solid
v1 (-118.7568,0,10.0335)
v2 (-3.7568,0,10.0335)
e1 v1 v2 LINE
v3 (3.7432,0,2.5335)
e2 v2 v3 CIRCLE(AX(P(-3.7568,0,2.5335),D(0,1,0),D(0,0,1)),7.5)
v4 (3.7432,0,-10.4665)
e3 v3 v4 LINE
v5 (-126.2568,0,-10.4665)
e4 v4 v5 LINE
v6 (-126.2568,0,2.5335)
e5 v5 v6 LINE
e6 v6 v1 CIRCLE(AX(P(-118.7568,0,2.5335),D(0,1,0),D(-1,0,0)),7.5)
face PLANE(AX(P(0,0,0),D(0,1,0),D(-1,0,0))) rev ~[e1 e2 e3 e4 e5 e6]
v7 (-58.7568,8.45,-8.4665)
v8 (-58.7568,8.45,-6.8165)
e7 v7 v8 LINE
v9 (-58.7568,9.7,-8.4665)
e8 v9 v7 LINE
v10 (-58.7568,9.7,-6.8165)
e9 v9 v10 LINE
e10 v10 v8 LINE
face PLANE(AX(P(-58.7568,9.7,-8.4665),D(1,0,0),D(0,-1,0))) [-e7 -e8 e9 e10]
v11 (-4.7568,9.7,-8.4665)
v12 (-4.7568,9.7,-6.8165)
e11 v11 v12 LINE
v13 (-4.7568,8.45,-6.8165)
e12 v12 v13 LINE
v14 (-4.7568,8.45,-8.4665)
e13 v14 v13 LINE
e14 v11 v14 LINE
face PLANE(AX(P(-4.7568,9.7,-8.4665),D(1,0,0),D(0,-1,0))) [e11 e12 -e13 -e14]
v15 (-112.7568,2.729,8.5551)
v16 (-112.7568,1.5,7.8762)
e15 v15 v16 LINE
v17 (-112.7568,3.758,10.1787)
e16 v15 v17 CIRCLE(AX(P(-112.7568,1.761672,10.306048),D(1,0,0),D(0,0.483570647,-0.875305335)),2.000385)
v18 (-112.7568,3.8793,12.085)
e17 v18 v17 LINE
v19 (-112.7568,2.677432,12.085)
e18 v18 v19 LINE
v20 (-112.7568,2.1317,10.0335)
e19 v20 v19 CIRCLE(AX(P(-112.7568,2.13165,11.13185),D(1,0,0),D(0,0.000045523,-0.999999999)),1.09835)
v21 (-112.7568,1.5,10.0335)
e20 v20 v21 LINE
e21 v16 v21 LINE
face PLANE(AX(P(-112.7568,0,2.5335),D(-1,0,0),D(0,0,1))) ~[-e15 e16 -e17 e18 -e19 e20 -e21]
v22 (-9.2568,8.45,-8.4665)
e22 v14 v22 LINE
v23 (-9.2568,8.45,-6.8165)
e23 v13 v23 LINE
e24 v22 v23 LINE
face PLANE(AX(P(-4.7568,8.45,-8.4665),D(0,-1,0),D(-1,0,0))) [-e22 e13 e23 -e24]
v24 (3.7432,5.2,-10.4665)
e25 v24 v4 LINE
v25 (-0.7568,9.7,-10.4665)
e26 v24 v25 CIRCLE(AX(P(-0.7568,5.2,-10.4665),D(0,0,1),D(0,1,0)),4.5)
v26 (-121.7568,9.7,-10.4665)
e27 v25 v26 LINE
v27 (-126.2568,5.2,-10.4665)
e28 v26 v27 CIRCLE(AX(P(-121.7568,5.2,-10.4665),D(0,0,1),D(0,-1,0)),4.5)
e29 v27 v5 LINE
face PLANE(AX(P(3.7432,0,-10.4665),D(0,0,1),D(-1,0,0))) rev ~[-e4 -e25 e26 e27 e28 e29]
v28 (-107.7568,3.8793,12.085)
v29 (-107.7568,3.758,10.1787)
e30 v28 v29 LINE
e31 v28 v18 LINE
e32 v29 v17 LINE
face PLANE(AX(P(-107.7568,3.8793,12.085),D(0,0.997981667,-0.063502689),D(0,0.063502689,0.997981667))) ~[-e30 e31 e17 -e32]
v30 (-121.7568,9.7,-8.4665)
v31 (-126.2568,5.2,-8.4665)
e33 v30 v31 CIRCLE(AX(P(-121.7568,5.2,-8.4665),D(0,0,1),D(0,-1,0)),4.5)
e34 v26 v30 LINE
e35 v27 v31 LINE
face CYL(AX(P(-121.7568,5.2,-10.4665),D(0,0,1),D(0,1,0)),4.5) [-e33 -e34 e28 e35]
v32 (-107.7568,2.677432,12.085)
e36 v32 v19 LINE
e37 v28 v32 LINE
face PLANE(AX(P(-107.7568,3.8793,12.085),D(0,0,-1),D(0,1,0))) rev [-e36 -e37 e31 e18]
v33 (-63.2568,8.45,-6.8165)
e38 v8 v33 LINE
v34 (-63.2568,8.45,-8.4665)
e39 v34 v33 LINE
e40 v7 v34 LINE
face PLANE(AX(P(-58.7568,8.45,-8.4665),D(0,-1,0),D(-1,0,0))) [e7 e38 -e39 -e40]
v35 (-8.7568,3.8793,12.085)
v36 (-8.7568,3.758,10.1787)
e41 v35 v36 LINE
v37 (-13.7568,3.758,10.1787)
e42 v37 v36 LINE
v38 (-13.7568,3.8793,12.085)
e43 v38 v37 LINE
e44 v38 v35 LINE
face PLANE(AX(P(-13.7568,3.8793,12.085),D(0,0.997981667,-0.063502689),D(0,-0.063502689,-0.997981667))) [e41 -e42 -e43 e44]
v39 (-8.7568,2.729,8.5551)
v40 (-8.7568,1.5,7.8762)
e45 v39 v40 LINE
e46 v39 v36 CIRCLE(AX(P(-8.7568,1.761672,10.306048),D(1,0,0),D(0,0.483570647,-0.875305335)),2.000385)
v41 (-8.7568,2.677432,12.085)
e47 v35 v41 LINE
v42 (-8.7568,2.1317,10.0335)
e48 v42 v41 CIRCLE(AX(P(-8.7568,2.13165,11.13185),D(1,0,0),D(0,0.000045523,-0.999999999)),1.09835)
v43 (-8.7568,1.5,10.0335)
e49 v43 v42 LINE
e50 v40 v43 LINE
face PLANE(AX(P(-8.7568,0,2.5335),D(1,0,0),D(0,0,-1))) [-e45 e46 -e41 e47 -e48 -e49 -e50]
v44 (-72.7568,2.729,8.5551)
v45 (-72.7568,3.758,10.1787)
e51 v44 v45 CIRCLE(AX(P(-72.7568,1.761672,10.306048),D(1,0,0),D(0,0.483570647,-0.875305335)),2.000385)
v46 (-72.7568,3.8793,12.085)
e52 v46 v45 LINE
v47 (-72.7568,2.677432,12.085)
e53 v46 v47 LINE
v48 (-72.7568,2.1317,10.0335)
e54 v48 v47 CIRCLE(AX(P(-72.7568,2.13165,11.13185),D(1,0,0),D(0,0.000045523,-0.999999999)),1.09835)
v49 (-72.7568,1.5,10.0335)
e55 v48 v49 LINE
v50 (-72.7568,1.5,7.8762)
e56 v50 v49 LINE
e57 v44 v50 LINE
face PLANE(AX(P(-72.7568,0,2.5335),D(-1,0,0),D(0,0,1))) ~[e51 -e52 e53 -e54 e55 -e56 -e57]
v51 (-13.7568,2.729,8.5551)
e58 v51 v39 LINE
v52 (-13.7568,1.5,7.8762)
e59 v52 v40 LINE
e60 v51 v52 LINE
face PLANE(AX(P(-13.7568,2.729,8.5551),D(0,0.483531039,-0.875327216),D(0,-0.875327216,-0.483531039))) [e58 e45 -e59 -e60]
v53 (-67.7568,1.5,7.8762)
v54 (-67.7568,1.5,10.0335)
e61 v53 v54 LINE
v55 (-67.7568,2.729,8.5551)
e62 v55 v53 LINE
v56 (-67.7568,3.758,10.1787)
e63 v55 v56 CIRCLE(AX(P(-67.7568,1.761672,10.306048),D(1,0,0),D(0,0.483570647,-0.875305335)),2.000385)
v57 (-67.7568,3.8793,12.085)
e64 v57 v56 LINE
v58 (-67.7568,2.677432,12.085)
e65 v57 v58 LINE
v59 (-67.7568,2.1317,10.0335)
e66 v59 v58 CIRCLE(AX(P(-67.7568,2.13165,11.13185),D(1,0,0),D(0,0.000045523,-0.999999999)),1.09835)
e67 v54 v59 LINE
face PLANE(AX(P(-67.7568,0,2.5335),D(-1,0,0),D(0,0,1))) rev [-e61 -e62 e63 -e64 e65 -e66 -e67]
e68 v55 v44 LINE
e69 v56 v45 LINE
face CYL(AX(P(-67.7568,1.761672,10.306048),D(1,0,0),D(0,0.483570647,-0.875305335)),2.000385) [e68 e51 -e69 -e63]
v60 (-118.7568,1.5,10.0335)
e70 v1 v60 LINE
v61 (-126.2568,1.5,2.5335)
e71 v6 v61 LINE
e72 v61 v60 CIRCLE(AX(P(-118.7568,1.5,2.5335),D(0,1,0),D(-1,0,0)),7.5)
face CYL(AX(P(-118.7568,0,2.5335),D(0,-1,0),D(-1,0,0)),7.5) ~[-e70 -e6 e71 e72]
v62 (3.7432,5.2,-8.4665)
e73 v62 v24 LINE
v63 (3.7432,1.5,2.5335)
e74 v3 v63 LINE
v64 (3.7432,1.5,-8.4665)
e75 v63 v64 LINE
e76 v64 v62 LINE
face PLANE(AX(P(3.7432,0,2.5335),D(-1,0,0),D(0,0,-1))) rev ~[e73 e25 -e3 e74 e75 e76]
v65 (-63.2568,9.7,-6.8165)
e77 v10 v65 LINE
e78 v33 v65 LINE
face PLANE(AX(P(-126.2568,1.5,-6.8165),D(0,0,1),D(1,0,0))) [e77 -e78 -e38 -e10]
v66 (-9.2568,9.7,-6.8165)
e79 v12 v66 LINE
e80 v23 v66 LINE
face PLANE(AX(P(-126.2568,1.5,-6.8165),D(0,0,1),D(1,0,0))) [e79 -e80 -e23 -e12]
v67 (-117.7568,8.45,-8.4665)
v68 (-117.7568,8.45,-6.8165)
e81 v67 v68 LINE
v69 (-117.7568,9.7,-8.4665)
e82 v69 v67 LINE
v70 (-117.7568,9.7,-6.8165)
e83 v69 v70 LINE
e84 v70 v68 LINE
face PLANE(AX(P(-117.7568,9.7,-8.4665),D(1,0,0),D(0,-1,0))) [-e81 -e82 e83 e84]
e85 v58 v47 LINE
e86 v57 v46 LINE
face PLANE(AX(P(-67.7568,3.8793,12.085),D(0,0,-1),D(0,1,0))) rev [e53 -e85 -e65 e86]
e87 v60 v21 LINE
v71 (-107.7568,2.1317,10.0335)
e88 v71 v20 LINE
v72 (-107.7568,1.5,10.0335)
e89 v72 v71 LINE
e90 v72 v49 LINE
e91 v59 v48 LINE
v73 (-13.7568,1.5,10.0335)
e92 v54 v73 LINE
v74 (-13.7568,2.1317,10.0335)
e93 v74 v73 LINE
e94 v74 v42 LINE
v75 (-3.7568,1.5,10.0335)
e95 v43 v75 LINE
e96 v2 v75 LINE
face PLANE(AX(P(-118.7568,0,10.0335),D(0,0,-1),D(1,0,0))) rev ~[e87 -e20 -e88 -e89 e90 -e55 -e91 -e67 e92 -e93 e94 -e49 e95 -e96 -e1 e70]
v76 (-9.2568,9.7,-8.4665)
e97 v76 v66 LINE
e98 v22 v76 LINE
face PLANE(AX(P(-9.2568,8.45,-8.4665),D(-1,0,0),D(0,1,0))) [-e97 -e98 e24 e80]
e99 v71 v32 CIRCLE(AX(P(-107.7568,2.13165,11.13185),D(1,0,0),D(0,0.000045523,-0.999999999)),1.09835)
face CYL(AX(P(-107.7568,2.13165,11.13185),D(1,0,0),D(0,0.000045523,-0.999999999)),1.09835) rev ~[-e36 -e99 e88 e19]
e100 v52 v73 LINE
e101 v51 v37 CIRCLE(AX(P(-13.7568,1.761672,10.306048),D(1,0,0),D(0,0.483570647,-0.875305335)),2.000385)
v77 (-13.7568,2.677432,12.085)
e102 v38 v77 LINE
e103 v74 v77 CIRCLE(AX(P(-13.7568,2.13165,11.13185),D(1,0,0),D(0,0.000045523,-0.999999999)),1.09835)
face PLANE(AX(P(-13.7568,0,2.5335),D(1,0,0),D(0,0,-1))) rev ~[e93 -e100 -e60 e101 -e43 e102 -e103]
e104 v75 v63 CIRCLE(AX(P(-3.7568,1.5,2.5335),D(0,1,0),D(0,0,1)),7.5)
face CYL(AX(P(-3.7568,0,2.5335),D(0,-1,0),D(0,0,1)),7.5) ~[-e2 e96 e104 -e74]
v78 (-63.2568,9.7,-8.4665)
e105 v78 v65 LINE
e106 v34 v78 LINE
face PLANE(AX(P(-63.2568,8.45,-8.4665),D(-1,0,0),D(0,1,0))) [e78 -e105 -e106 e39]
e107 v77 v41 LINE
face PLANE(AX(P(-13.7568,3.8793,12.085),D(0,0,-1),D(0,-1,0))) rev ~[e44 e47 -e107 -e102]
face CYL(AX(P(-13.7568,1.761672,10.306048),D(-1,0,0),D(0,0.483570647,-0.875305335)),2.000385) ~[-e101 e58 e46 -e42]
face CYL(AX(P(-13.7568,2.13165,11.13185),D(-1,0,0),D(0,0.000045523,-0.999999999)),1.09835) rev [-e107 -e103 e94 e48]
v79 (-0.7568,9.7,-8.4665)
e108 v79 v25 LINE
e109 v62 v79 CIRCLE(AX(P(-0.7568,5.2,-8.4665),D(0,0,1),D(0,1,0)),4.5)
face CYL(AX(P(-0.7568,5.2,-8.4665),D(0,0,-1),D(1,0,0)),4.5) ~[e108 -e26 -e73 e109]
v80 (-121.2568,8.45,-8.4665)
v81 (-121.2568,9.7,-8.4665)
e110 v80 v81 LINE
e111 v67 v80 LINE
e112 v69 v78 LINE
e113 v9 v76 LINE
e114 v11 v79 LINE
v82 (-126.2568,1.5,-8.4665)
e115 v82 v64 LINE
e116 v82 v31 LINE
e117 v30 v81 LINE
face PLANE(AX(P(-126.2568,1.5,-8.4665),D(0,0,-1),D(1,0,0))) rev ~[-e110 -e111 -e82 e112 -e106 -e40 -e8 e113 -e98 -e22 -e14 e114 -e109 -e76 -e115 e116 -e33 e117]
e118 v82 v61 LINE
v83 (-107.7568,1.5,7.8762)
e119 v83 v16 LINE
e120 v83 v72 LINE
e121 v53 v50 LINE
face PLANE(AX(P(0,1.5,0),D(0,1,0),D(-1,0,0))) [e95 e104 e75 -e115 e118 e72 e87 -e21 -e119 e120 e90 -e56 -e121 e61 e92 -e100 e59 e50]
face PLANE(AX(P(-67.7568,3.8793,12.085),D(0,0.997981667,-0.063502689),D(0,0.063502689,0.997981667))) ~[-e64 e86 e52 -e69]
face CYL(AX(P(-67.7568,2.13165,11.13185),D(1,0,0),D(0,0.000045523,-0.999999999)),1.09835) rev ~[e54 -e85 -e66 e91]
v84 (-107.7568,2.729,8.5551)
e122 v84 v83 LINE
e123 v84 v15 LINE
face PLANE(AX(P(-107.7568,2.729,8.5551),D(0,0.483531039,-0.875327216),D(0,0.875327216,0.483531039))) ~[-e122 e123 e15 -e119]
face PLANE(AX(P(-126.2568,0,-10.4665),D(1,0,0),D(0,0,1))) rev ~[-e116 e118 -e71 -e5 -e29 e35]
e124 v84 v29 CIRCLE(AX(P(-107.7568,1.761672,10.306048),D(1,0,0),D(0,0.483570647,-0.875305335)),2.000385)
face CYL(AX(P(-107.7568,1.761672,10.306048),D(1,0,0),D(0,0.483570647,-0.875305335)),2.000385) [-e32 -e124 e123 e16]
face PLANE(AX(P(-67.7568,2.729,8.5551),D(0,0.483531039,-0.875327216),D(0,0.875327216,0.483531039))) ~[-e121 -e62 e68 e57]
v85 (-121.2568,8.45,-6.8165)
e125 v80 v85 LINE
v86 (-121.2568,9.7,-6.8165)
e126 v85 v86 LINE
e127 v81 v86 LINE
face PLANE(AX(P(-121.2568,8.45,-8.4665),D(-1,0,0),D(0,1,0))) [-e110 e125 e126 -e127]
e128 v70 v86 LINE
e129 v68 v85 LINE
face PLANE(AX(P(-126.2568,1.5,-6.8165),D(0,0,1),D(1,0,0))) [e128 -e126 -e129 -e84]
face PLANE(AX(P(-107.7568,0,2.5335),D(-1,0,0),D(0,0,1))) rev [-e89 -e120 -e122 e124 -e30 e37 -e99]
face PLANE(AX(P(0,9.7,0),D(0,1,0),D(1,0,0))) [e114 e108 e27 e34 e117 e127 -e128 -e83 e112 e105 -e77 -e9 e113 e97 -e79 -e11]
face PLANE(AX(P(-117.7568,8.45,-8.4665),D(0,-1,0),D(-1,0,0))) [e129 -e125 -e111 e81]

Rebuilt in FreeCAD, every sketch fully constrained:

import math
import FreeCAD as App
import Part
import Sketcher
Q = App.Units.Quantity


def edges_at(feature, points):
    """Names of the edges that pass closest to the given points."""
    edges = feature.Shape.Edges
    near = lambda p: min(range(len(edges)), key=lambda i: edges[i].distToShape(Part.Vertex(*p))[0])
    return sorted({f"Edge{near(p) + 1}" for p in points})

doc = App.newDocument("Part")
body = doc.addObject("PartDesign::Body", "Body")

sketch1 = doc.addObject("Sketcher::SketchObject", "Sketch")
body.addObject(sketch1)
sketch1.AttachmentSupport = (doc.XZ_Plane, [""])
sketch1.MapMode = "FlatFace"
sketch1.addGeometry(Part.ArcOfCircle(Part.Circle(App.Vector(-119, 3, 0), App.Vector(0, 0, 1), 8), math.radians(90), math.radians(180)), False)
sketch1.addGeometry(Part.LineSegment(App.Vector(-119, 10, 0), App.Vector(-4, 10, 0)), False)
sketch1.addGeometry(Part.ArcOfCircle(Part.Circle(App.Vector(-4, 3, 0), App.Vector(0, 0, 1), 8), math.radians(0), math.radians(90)), False)
sketch1.addGeometry(Part.LineSegment(App.Vector(4, 3, 0), App.Vector(4, -10, 0)), False)
sketch1.addGeometry(Part.LineSegment(App.Vector(4, -10, 0), App.Vector(-126, -10, 0)), False)
sketch1.addGeometry(Part.LineSegment(App.Vector(-126, -10, 0), App.Vector(-126, 3, 0)), False)
sketch1.addConstraint(Sketcher.Constraint("Tangent", 0, 1, 1, 1))
sketch1.addConstraint(Sketcher.Constraint("Tangent", 1, 2, 2, 2))
sketch1.addConstraint(Sketcher.Constraint("Tangent", 2, 1, 3, 1))
sketch1.addConstraint(Sketcher.Constraint("Coincident", 3, 2, 4, 1))
sketch1.addConstraint(Sketcher.Constraint("Coincident", 4, 2, 5, 1))
sketch1.addConstraint(Sketcher.Constraint("Tangent", 5, 2, 0, 2))
sketch1.addConstraint(Sketcher.Constraint("Horizontal", 1))
sketch1.addConstraint(Sketcher.Constraint("Vertical", 3))
sketch1.addConstraint(Sketcher.Constraint("Horizontal", 4))
sketch1.addConstraint(Sketcher.Constraint("Vertical", 5))
sketch1.addConstraint(Sketcher.Constraint("Equal", 0, 2))
sketch1.addConstraint(Sketcher.Constraint("Radius", 0, Q("7.5 mm")))
sketch1.addConstraint(Sketcher.Constraint("DistanceX", 4, 2, 4, 1, Q("130 mm")))
sketch1.addConstraint(Sketcher.Constraint("DistanceY", 3, 2, 1, 2, Q("20.5 mm")))
sketch1.addConstraint(Sketcher.Constraint("DistanceX", 0, 3, -1, 1, Q("118.7568 mm")))
sketch1.addConstraint(Sketcher.Constraint("DistanceY", -1, 1, 0, 3, Q("2.5335 mm")))
pad1 = doc.addObject("PartDesign::Pad", "Pad")
body.addObject(pad1)
pad1.Profile = sketch1
pad1.Length = 1.5
pad1.Reversed = True

sketch2 = doc.addObject("Sketcher::SketchObject", "Sketch001")
body.addObject(sketch2)
sketch2.AttachmentSupport = (doc.XZ_Plane, [""])
sketch2.MapMode = "FlatFace"
sketch2.AttachmentOffset = App.Placement(App.Vector(0, 0, -1.5), App.Rotation())
sketch2.addGeometry(Part.LineSegment(App.Vector(-126.3, -8.5, 0), App.Vector(3.7, -8.5, 0)), False)
sketch2.addGeometry(Part.LineSegment(App.Vector(3.7, -8.5, 0), App.Vector(3.7, -10.5, 0)), False)
sketch2.addGeometry(Part.LineSegment(App.Vector(3.7, -10.5, 0), App.Vector(-126.3, -10.5, 0)), False)
sketch2.addGeometry(Part.LineSegment(App.Vector(-126.3, -10.5, 0), App.Vector(-126.3, -8.5, 0)), False)
sketch2.addConstraint(Sketcher.Constraint("Coincident", 0, 2, 1, 1))
sketch2.addConstraint(Sketcher.Constraint("Coincident", 1, 2, 2, 1))
sketch2.addConstraint(Sketcher.Constraint("Coincident", 2, 2, 3, 1))
sketch2.addConstraint(Sketcher.Constraint("Coincident", 3, 2, 0, 1))
sketch2.addConstraint(Sketcher.Constraint("Horizontal", 0))
sketch2.addConstraint(Sketcher.Constraint("Vertical", 1))
sketch2.addConstraint(Sketcher.Constraint("Horizontal", 2))
sketch2.addConstraint(Sketcher.Constraint("Vertical", 3))
sketch2.addConstraint(Sketcher.Constraint("DistanceY", 1, 2, 1, 1, Q("2 mm")))
sketch2.addConstraint(Sketcher.Constraint("DistanceX", 0, 1, 0, 2, Q("130 mm")))
sketch2.addConstraint(Sketcher.Constraint("DistanceX", -1, 1, 0, 2, Q("3.7432 mm")))
sketch2.addConstraint(Sketcher.Constraint("DistanceY", 0, 2, -1, 1, Q("8.4665 mm")))
pad2 = doc.addObject("PartDesign::Pad", "Pad001")
body.addObject(pad2)
pad2.Profile = sketch2
pad2.Length = 8.2
pad2.Reversed = True
doc.recompute()

fillet = doc.addObject("PartDesign::Fillet", "Fillet")
body.addObject(fillet)
fillet.Base = (pad2, edges_at(pad2, [(3.743, 9.7, -9.466)]))
fillet.Radius = 4.5
doc.recompute()

fillet2 = doc.addObject("PartDesign::Fillet", "Fillet001")
body.addObject(fillet2)
fillet2.Base = (fillet, edges_at(fillet, [(-126.257, 9.7, -9.466)]))
fillet2.Radius = 4.5

sketch3 = doc.addObject("Sketcher::SketchObject", "Sketch002")
body.addObject(sketch3)
sketch3.AttachmentSupport = (doc.XY_Plane, [""])
sketch3.MapMode = "FlatFace"
sketch3.AttachmentOffset = App.Placement(App.Vector(0, 0, -8.4665), App.Rotation())
sketch3.addGeometry(Part.LineSegment(App.Vector(-4.8, 8.4, 0), App.Vector(-4.8, 9.7, 0)), False)
sketch3.addGeometry(Part.LineSegment(App.Vector(-4.8, 9.7, 0), App.Vector(-9.3, 9.7, 0)), False)
sketch3.addGeometry(Part.LineSegment(App.Vector(-9.3, 9.7, 0), App.Vector(-9.3, 8.4, 0)), False)
sketch3.addGeometry(Part.LineSegment(App.Vector(-9.3, 8.4, 0), App.Vector(-4.8, 8.4, 0)), False)
sketch3.addGeometry(Part.LineSegment(App.Vector(-117.8, 8.4, 0), App.Vector(-117.8, 9.7, 0)), False)
sketch3.addGeometry(Part.LineSegment(App.Vector(-117.8, 9.7, 0), App.Vector(-121.3, 9.7, 0)), False)
sketch3.addGeometry(Part.LineSegment(App.Vector(-121.3, 9.7, 0), App.Vector(-121.3, 8.4, 0)), False)
sketch3.addGeometry(Part.LineSegment(App.Vector(-121.3, 8.4, 0), App.Vector(-117.8, 8.4, 0)), False)
sketch3.addGeometry(Part.LineSegment(App.Vector(-58.8, 8.4, 0), App.Vector(-58.8, 9.7, 0)), False)
sketch3.addGeometry(Part.LineSegment(App.Vector(-58.8, 9.7, 0), App.Vector(-63.3, 9.7, 0)), False)
sketch3.addGeometry(Part.LineSegment(App.Vector(-63.3, 9.7, 0), App.Vector(-63.3, 8.4, 0)), False)
sketch3.addGeometry(Part.LineSegment(App.Vector(-63.3, 8.4, 0), App.Vector(-58.8, 8.4, 0)), False)
sketch3.addConstraint(Sketcher.Constraint("Coincident", 0, 2, 1, 1))
sketch3.addConstraint(Sketcher.Constraint("Coincident", 1, 2, 2, 1))
sketch3.addConstraint(Sketcher.Constraint("Coincident", 2, 2, 3, 1))
sketch3.addConstraint(Sketcher.Constraint("Coincident", 3, 2, 0, 1))
sketch3.addConstraint(Sketcher.Constraint("Coincident", 4, 2, 5, 1))
sketch3.addConstraint(Sketcher.Constraint("Coincident", 5, 2, 6, 1))
sketch3.addConstraint(Sketcher.Constraint("Coincident", 6, 2, 7, 1))
sketch3.addConstraint(Sketcher.Constraint("Coincident", 7, 2, 4, 1))
sketch3.addConstraint(Sketcher.Constraint("Coincident", 8, 2, 9, 1))
sketch3.addConstraint(Sketcher.Constraint("Coincident", 9, 2, 10, 1))
sketch3.addConstraint(Sketcher.Constraint("Coincident", 10, 2, 11, 1))
sketch3.addConstraint(Sketcher.Constraint("Coincident", 11, 2, 8, 1))
sketch3.addConstraint(Sketcher.Constraint("Vertical", 0))
sketch3.addConstraint(Sketcher.Constraint("Horizontal", 1))
sketch3.addConstraint(Sketcher.Constraint("Vertical", 2))
sketch3.addConstraint(Sketcher.Constraint("Horizontal", 3))
sketch3.addConstraint(Sketcher.Constraint("Vertical", 4))
sketch3.addConstraint(Sketcher.Constraint("Horizontal", 5))
sketch3.addConstraint(Sketcher.Constraint("Vertical", 6))
sketch3.addConstraint(Sketcher.Constraint("Horizontal", 7))
sketch3.addConstraint(Sketcher.Constraint("Vertical", 8))
sketch3.addConstraint(Sketcher.Constraint("Horizontal", 9))
sketch3.addConstraint(Sketcher.Constraint("Vertical", 10))
sketch3.addConstraint(Sketcher.Constraint("Horizontal", 11))
sketch3.addConstraint(Sketcher.Constraint("Horizontal", 1, 2, 4, 2))
sketch3.addConstraint(Sketcher.Constraint("Horizontal", 3, 2, 6, 2))
sketch3.addConstraint(Sketcher.Constraint("Horizontal", 5, 2, 8, 2))
sketch3.addConstraint(Sketcher.Constraint("Horizontal", 7, 2, 10, 2))
sketch3.addConstraint(Sketcher.Constraint("Equal", 3, 9))
sketch3.addConstraint(Sketcher.Constraint("DistanceX", 1, 2, 1, 1, Q("4.5 mm")))
sketch3.addConstraint(Sketcher.Constraint("DistanceX", 5, 2, 5, 1, Q("3.5 mm")))
sketch3.addConstraint(Sketcher.Constraint("DistanceY", 0, 1, 0, 2, Q("1.25 mm")))
sketch3.addConstraint(Sketcher.Constraint("DistanceX", 4, 2, 0, 2, Q("113 mm")))
sketch3.addConstraint(Sketcher.Constraint("DistanceX", 8, 2, 0, 2, Q("54 mm")))
sketch3.addConstraint(Sketcher.Constraint("DistanceY", -1, 1, 0, 2, Q("9.7 mm")))
sketch3.addConstraint(Sketcher.Constraint("DistanceX", 0, 2, -1, 1, Q("4.7568 mm")))
pad3 = doc.addObject("PartDesign::Pad", "Pad002")
body.addObject(pad3)
pad3.Profile = sketch3
pad3.Length = 1.65

sketch4 = doc.addObject("Sketcher::SketchObject", "Sketch003")
body.addObject(sketch4)
sketch4.AttachmentSupport = (doc.YZ_Plane, [""])
sketch4.MapMode = "FlatFace"
sketch4.AttachmentOffset = App.Placement(App.Vector(0, 0, -13.7568), App.Rotation())
sketch4.addGeometry(Part.LineSegment(App.Vector(3.8, 10.2, 0), App.Vector(3.9, 12.1, 0)), False)
sketch4.addGeometry(Part.LineSegment(App.Vector(3.9, 12.1, 0), App.Vector(2.7, 12.1, 0)), False)
sketch4.addGeometry(Part.ArcOfCircle(Part.Circle(App.Vector(2.1, 11.1, 0), App.Vector(0, 0, 1), 1.1), math.radians(-90), math.radians(60)), False)
sketch4.addGeometry(Part.LineSegment(App.Vector(2.1, 10, 0), App.Vector(1.5, 10, 0)), False)
sketch4.addGeometry(Part.LineSegment(App.Vector(1.5, 10, 0), App.Vector(1.5, 7.9, 0)), False)
sketch4.addGeometry(Part.LineSegment(App.Vector(1.5, 7.9, 0), App.Vector(2.7, 8.6, 0)), False)
sketch4.addGeometry(Part.ArcOfCircle(Part.Circle(App.Vector(1.8, 10.3, 0), App.Vector(0, 0, 1), 2), math.radians(-61), math.radians(-4)), False)
sketch4.addConstraint(Sketcher.Constraint("Coincident", 0, 2, 1, 1))
sketch4.addConstraint(Sketcher.Constraint("Coincident", 1, 2, 2, 2))
sketch4.addConstraint(Sketcher.Constraint("Tangent", 2, 1, 3, 1))
sketch4.addConstraint(Sketcher.Constraint("Coincident", 3, 2, 4, 1))
sketch4.addConstraint(Sketcher.Constraint("Coincident", 4, 2, 5, 1))
sketch4.addConstraint(Sketcher.Constraint("Tangent", 5, 2, 6, 1))
sketch4.addConstraint(Sketcher.Constraint("Tangent", 6, 2, 0, 1))
sketch4.addConstraint(Sketcher.Constraint("Horizontal", 1))
sketch4.addConstraint(Sketcher.Constraint("Horizontal", 3))
sketch4.addConstraint(Sketcher.Constraint("Vertical", 4))
sketch4.addConstraint(Sketcher.Constraint("Radius", 6, Q("2 mm")))
sketch4.addConstraint(Sketcher.Constraint("DistanceX", -1, 1, 3, 2, Q("1.5 mm")))
sketch4.addConstraint(Sketcher.Constraint("Angle", 0, Q("86.359 deg")))
sketch4.addConstraint(Sketcher.Constraint("Radius", 2, Q("1.0983 mm")))
sketch4.addConstraint(Sketcher.Constraint("Distance", 5, Q("1.404 mm")))
sketch4.addConstraint(Sketcher.Constraint("DistanceX", 1, 2, 1, 1, Q("1.2019 mm")))
sketch4.addConstraint(Sketcher.Constraint("DistanceX", 3, 2, 3, 1, Q("0.6317 mm")))
sketch4.addConstraint(Sketcher.Constraint("DistanceY", 4, 2, 4, 1, Q("2.1573 mm")))
sketch4.addConstraint(Sketcher.Constraint("DistanceX", -1, 1, 6, 3, Q("1.762 mm")))
sketch4.addConstraint(Sketcher.Constraint("DistanceY", -1, 1, 0, 2, Q("12.085 mm")))
pad4 = doc.addObject("PartDesign::Pad", "Pad003")
body.addObject(pad4)
pad4.Profile = sketch4
pad4.Length = 5
doc.recompute()

datumplane = doc.addObject("PartDesign::Plane", "DatumPlane")
body.addObject(datumplane)
datumplane.AttachmentSupport = (doc.YZ_Plane, [""])
datumplane.MapMode = "FlatFace"
datumplane.AttachmentOffset = App.Placement(App.Vector(0, 0, -40.7568), App.Rotation())
mirrored = doc.addObject("PartDesign::Mirrored", "Mirrored")
body.addObject(mirrored)
mirrored.Originals = [pad4]
mirrored.MirrorPlane = (datumplane, [""])
body.Tip = mirrored
doc.recompute()

datumplane2 = doc.addObject("PartDesign::Plane", "DatumPlane001")
body.addObject(datumplane2)
datumplane2.AttachmentSupport = (doc.YZ_Plane, [""])
datumplane2.MapMode = "FlatFace"
datumplane2.AttachmentOffset = App.Placement(App.Vector(0, 0, -60.7568), App.Rotation())
mirrored2 = doc.addObject("PartDesign::Mirrored", "Mirrored001")
body.addObject(mirrored2)
mirrored2.Originals = [pad4]
mirrored2.MirrorPlane = (datumplane2, [""])
body.Tip = mirrored2

doc.recompute()
